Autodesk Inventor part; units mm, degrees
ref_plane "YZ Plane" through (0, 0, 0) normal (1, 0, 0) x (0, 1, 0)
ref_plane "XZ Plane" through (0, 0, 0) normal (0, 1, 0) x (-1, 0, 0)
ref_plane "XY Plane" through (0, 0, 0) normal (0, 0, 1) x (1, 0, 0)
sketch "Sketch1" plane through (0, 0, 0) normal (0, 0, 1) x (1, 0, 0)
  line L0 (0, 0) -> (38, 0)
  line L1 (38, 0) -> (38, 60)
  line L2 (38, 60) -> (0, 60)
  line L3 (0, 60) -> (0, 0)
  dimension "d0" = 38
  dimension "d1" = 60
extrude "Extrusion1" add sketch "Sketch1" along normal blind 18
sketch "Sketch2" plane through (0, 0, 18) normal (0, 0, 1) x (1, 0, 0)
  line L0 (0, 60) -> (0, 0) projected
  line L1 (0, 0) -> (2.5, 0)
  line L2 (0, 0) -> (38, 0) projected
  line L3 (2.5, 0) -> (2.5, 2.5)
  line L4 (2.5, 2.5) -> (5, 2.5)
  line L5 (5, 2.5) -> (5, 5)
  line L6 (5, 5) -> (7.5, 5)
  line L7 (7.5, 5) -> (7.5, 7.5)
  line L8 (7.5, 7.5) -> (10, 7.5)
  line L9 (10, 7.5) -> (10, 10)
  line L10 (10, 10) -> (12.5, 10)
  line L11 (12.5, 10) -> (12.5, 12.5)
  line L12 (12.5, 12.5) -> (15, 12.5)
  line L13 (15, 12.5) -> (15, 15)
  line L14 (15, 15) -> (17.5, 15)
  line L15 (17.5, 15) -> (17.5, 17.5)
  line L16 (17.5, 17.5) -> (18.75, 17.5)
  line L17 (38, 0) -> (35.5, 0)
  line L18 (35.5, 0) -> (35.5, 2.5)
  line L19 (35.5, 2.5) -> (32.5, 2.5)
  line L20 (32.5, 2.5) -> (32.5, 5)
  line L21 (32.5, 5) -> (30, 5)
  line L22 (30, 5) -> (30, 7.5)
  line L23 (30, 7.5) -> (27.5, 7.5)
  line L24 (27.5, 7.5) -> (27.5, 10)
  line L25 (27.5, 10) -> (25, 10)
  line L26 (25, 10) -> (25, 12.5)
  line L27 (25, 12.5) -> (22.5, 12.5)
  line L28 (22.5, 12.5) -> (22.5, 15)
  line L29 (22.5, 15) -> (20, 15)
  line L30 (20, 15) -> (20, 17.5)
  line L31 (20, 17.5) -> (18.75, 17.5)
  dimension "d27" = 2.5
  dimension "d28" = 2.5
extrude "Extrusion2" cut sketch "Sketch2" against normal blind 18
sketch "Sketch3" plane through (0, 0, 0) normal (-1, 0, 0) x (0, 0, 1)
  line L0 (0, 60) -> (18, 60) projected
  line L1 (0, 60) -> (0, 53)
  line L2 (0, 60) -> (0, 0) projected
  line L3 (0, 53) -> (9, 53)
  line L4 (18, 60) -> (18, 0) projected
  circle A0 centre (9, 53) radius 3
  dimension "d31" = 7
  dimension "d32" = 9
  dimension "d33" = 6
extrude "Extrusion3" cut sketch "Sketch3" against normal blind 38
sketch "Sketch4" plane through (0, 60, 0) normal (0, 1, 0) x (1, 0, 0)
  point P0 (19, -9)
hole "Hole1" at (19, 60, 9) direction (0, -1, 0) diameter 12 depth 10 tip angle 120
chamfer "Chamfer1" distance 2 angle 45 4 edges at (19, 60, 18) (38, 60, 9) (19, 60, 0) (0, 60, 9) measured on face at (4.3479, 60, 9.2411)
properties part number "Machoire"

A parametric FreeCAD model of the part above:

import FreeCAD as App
import Part
import Sketcher
from FreeCAD import Vector


def edges_at(feature, points):
    """Names of the edges that pass closest to the given points."""
    edges = feature.Shape.Edges
    near = lambda p: min(range(len(edges)), key=lambda i: edges[i].distToShape(Part.Vertex(*p))[0])
    return sorted({f"Edge{near(p) + 1}" for p in points})

doc = App.newDocument("Part")
body = doc.addObject("PartDesign::Body", "Body")

# Sketch on XY plane
sketch1 = body.newObject("Sketcher::SketchObject", "Sketch")
sketch1.AttachmentSupport = (doc.getObject("XY_Plane"), [""])
sketch1.MapMode = "FlatFace"
sketch1.addGeometry(Part.LineSegment(Vector(0, 60, 0), Vector(0, 0, 0)), False)
sketch1.addGeometry(Part.LineSegment(Vector(0, 0, 0), Vector(38, 0, 0)), False)
sketch1.addGeometry(Part.LineSegment(Vector(38, 0, 0), Vector(38, 60, 0)), False)
sketch1.addGeometry(Part.LineSegment(Vector(38, 60, 0), Vector(0, 60, 0)), False)
sketch1.addConstraint(Sketcher.Constraint("Coincident", 0, 2, 1, 1))
sketch1.addConstraint(Sketcher.Constraint("Coincident", 1, 2, 2, 1))
sketch1.addConstraint(Sketcher.Constraint("Coincident", 2, 2, 3, 1))
sketch1.addConstraint(Sketcher.Constraint("Coincident", 3, 2, 0, 1))
sketch1.addConstraint(Sketcher.Constraint("Vertical", 0))
sketch1.addConstraint(Sketcher.Constraint("Horizontal", 1))
sketch1.addConstraint(Sketcher.Constraint("Vertical", 2))
sketch1.addConstraint(Sketcher.Constraint("Horizontal", 3))
sketch1.addConstraint(Sketcher.Constraint("Coincident", 0, 2, -1, 1))
sketch1.addConstraint(Sketcher.Constraint("DistanceX", 1, 1, 1, 2, 38.0))
sketch1.addConstraint(Sketcher.Constraint("DistanceY", 0, 2, 0, 1, 60.0))
pad1 = body.newObject("PartDesign::Pad", "Pad")
pad1.Profile = sketch1
pad1.Length = 18

# Sketch on XY plane
sketch2 = body.newObject("Sketcher::SketchObject", "Sketch001")
sketch2.AttachmentSupport = (doc.getObject("XY_Plane"), [""])
sketch2.MapMode = "FlatFace"
sketch2.AttachmentOffset = App.Placement(Vector(0, 0, 18), App.Rotation())
sketch2.addGeometry(Part.LineSegment(Vector(2.5, 2.5, 0), Vector(2.5, 0, 0)), False)
sketch2.addGeometry(Part.LineSegment(Vector(2.5, 0, 0), Vector(35.5, 0, 0)), False)
sketch2.addGeometry(Part.LineSegment(Vector(35.5, 0, 0), Vector(35.5, 2.5, 0)), False)
sketch2.addGeometry(Part.LineSegment(Vector(35.5, 2.5, 0), Vector(32.5, 2.5, 0)), False)
sketch2.addGeometry(Part.LineSegment(Vector(32.5, 2.5, 0), Vector(32.5, 5, 0)), False)
sketch2.addGeometry(Part.LineSegment(Vector(32.5, 5, 0), Vector(30, 5, 0)), False)
sketch2.addGeometry(Part.LineSegment(Vector(30, 5, 0), Vector(30, 7.5, 0)), False)
sketch2.addGeometry(Part.LineSegment(Vector(30, 7.5, 0), Vector(27.5, 7.5, 0)), False)
sketch2.addGeometry(Part.LineSegment(Vector(27.5, 7.5, 0), Vector(27.5, 10, 0)), False)
sketch2.addGeometry(Part.LineSegment(Vector(27.5, 10, 0), Vector(25, 10, 0)), False)
sketch2.addGeometry(Part.LineSegment(Vector(25, 10, 0), Vector(25, 12.5, 0)), False)
sketch2.addGeometry(Part.LineSegment(Vector(25, 12.5, 0), Vector(22.5, 12.5, 0)), False)
sketch2.addGeometry(Part.LineSegment(Vector(22.5, 12.5, 0), Vector(22.5, 15, 0)), False)
sketch2.addGeometry(Part.LineSegment(Vector(22.5, 15, 0), Vector(20, 15, 0)), False)
sketch2.addGeometry(Part.LineSegment(Vector(20, 15, 0), Vector(20, 17.5, 0)), False)
sketch2.addGeometry(Part.LineSegment(Vector(20, 17.5, 0), Vector(17.5, 17.5, 0)), False)
sketch2.addGeometry(Part.LineSegment(Vector(17.5, 17.5, 0), Vector(17.5, 15, 0)), False)
sketch2.addGeometry(Part.LineSegment(Vector(17.5, 15, 0), Vector(15, 15, 0)), False)
sketch2.addGeometry(Part.LineSegment(Vector(15, 15, 0), Vector(15, 12.5, 0)), False)
sketch2.addGeometry(Part.LineSegment(Vector(15, 12.5, 0), Vector(12.5, 12.5, 0)), False)
sketch2.addGeometry(Part.LineSegment(Vector(12.5, 12.5, 0), Vector(12.5, 10, 0)), False)
sketch2.addGeometry(Part.LineSegment(Vector(12.5, 10, 0), Vector(10, 10, 0)), False)
sketch2.addGeometry(Part.LineSegment(Vector(10, 10, 0), Vector(10, 7.5, 0)), False)
sketch2.addGeometry(Part.LineSegment(Vector(10, 7.5, 0), Vector(7.5, 7.5, 0)), False)
sketch2.addGeometry(Part.LineSegment(Vector(7.5, 7.5, 0), Vector(7.5, 5, 0)), False)
sketch2.addGeometry(Part.LineSegment(Vector(7.5, 5, 0), Vector(5, 5, 0)), False)
sketch2.addGeometry(Part.LineSegment(Vector(5, 5, 0), Vector(5, 2.5, 0)), False)
sketch2.addGeometry(Part.LineSegment(Vector(5, 2.5, 0), Vector(2.5, 2.5, 0)), False)
sketch2.addConstraint(Sketcher.Constraint("Coincident", 0, 2, 1, 1))
sketch2.addConstraint(Sketcher.Constraint("Coincident", 1, 2, 2, 1))
sketch2.addConstraint(Sketcher.Constraint("Coincident", 2, 2, 3, 1))
sketch2.addConstraint(Sketcher.Constraint("Coincident", 3, 2, 4, 1))
sketch2.addConstraint(Sketcher.Constraint("Coincident", 4, 2, 5, 1))
sketch2.addConstraint(Sketcher.Constraint("Coincident", 5, 2, 6, 1))
sketch2.addConstraint(Sketcher.Constraint("Coincident", 6, 2, 7, 1))
sketch2.addConstraint(Sketcher.Constraint("Coincident", 7, 2, 8, 1))
sketch2.addConstraint(Sketcher.Constraint("Coincident", 8, 2, 9, 1))
sketch2.addConstraint(Sketcher.Constraint("Coincident", 9, 2, 10, 1))
sketch2.addConstraint(Sketcher.Constraint("Coincident", 10, 2, 11, 1))
sketch2.addConstraint(Sketcher.Constraint("Coincident", 11, 2, 12, 1))
sketch2.addConstraint(Sketcher.Constraint("Coincident", 12, 2, 13, 1))
sketch2.addConstraint(Sketcher.Constraint("Coincident", 13, 2, 14, 1))
sketch2.addConstraint(Sketcher.Constraint("Coincident", 14, 2, 15, 1))
sketch2.addConstraint(Sketcher.Constraint("Coincident", 15, 2, 16, 1))
sketch2.addConstraint(Sketcher.Constraint("Coincident", 16, 2, 17, 1))
sketch2.addConstraint(Sketcher.Constraint("Coincident", 17, 2, 18, 1))
sketch2.addConstraint(Sketcher.Constraint("Coincident", 18, 2, 19, 1))
sketch2.addConstraint(Sketcher.Constraint("Coincident", 19, 2, 20, 1))
sketch2.addConstraint(Sketcher.Constraint("Coincident", 20, 2, 21, 1))
sketch2.addConstraint(Sketcher.Constraint("Coincident", 21, 2, 22, 1))
sketch2.addConstraint(Sketcher.Constraint("Coincident", 22, 2, 23, 1))
sketch2.addConstraint(Sketcher.Constraint("Coincident", 23, 2, 24, 1))
sketch2.addConstraint(Sketcher.Constraint("Coincident", 24, 2, 25, 1))
sketch2.addConstraint(Sketcher.Constraint("Coincident", 25, 2, 26, 1))
sketch2.addConstraint(Sketcher.Constraint("Coincident", 26, 2, 27, 1))
sketch2.addConstraint(Sketcher.Constraint("Coincident", 27, 2, 0, 1))
sketch2.addConstraint(Sketcher.Constraint("Vertical", 0))
sketch2.addConstraint(Sketcher.Constraint("Horizontal", 1))
sketch2.addConstraint(Sketcher.Constraint("Vertical", 2))
sketch2.addConstraint(Sketcher.Constraint("Horizontal", 3))
sketch2.addConstraint(Sketcher.Constraint("Vertical", 4))
sketch2.addConstraint(Sketcher.Constraint("Horizontal", 5))
sketch2.addConstraint(Sketcher.Constraint("Vertical", 6))
sketch2.addConstraint(Sketcher.Constraint("Horizontal", 7))
sketch2.addConstraint(Sketcher.Constraint("Vertical", 8))
sketch2.addConstraint(Sketcher.Constraint("Horizontal", 9))
sketch2.addConstraint(Sketcher.Constraint("Vertical", 10))
sketch2.addConstraint(Sketcher.Constraint("Horizontal", 11))
sketch2.addConstraint(Sketcher.Constraint("Vertical", 12))
sketch2.addConstraint(Sketcher.Constraint("Horizontal", 13))
sketch2.addConstraint(Sketcher.Constraint("Vertical", 14))
sketch2.addConstraint(Sketcher.Constraint("Horizontal", 15))
sketch2.addConstraint(Sketcher.Constraint("Vertical", 16))
sketch2.addConstraint(Sketcher.Constraint("Horizontal", 17))
sketch2.addConstraint(Sketcher.Constraint("Vertical", 18))
sketch2.addConstraint(Sketcher.Constraint("Horizontal", 19))
sketch2.addConstraint(Sketcher.Constraint("Vertical", 20))
sketch2.addConstraint(Sketcher.Constraint("Horizontal", 21))
sketch2.addConstraint(Sketcher.Constraint("Vertical", 22))
sketch2.addConstraint(Sketcher.Constraint("Horizontal", 23))
sketch2.addConstraint(Sketcher.Constraint("Vertical", 24))
sketch2.addConstraint(Sketcher.Constraint("Horizontal", 25))
sketch2.addConstraint(Sketcher.Constraint("Vertical", 26))
sketch2.addConstraint(Sketcher.Constraint("Horizontal", 27))
sketch2.addConstraint(Sketcher.Constraint("PointOnObject", 0, 2, -1))
sketch2.addConstraint(Sketcher.Constraint("Horizontal", 13, 2, 16, 2))
sketch2.addConstraint(Sketcher.Constraint("Horizontal", 11, 2, 18, 2))
sketch2.addConstraint(Sketcher.Constraint("Horizontal", 9, 2, 20, 2))
sketch2.addConstraint(Sketcher.Constraint("Horizontal", 7, 2, 22, 2))
sketch2.addConstraint(Sketcher.Constraint("Horizontal", 5, 2, 24, 2))
sketch2.addConstraint(Sketcher.Constraint("Horizontal", 3, 2, 26, 2))
sketch2.addConstraint(Sketcher.Constraint("Equal", 5, 7))
sketch2.addConstraint(Sketcher.Constraint("Equal", 7, 9))
sketch2.addConstraint(Sketcher.Constraint("Equal", 9, 11))
sketch2.addConstraint(Sketcher.Constraint("Equal", 11, 13))
sketch2.addConstraint(Sketcher.Constraint("Equal", 13, 15))
sketch2.addConstraint(Sketcher.Constraint("Equal", 15, 17))
sketch2.addConstraint(Sketcher.Constraint("Equal", 17, 19))
sketch2.addConstraint(Sketcher.Constraint("Equal", 19, 21))
sketch2.addConstraint(Sketcher.Constraint("Equal", 21, 23))
sketch2.addConstraint(Sketcher.Constraint("Equal", 23, 25))
sketch2.addConstraint(Sketcher.Constraint("Equal", 25, 27))
sketch2.addConstraint(Sketcher.Constraint("Equal", 27, 0))
sketch2.addConstraint(Sketcher.Constraint("Equal", 2, 4))
sketch2.addConstraint(Sketcher.Constraint("Equal", 4, 6))
sketch2.addConstraint(Sketcher.Constraint("Equal", 6, 8))
sketch2.addConstraint(Sketcher.Constraint("Equal", 8, 10))
sketch2.addConstraint(Sketcher.Constraint("Equal", 10, 12))
sketch2.addConstraint(Sketcher.Constraint("Equal", 12, 14))
sketch2.addConstraint(Sketcher.Constraint("DistanceX", 5, 2, 5, 1, 2.5))
sketch2.addConstraint(Sketcher.Constraint("DistanceX", -1, 1, 0, 2, 2.5))
sketch2.addConstraint(Sketcher.Constraint("DistanceX", 1, 1, 1, 2, 33.0))
pocket1 = body.newObject("PartDesign::Pocket", "Pocket")
pocket1.Profile = sketch2
pocket1.Length = 18

# Sketch on YZ plane
sketch3 = body.newObject("Sketcher::SketchObject", "Sketch002")
sketch3.AttachmentSupport = (doc.getObject("YZ_Plane"), [""])
sketch3.MapMode = "FlatFace"
sketch3.addGeometry(Part.Circle(Vector(53, 9, 0), Vector(0, 0, 1), 3), False)
sketch3.addConstraint(Sketcher.Constraint("Diameter", 0, 6.0))
sketch3.addConstraint(Sketcher.Constraint("DistanceY", -1, 1, 0, 3, 9.0))
sketch3.addConstraint(Sketcher.Constraint("DistanceX", -1, 1, 0, 3, 53.0))
pocket2 = body.newObject("PartDesign::Pocket", "Pocket001")
pocket2.Profile = sketch3
pocket2.Length = 38
pocket2.Reversed = True

# Sketch on XZ plane
sketch4 = body.newObject("Sketcher::SketchObject", "Sketch003")
sketch4.AttachmentSupport = (doc.getObject("XZ_Plane"), [""])
sketch4.MapMode = "FlatFace"
sketch4.AttachmentOffset = App.Placement(Vector(0, 0, -60), App.Rotation())
sketch4.addGeometry(Part.Circle(Vector(19, 9, 0), Vector(0, 0, 1), 6), False)
sketch4.addConstraint(Sketcher.Constraint("Diameter", 0, 12.0))
sketch4.addConstraint(Sketcher.Constraint("DistanceX", -1, 1, 0, 3, 19.0))
sketch4.addConstraint(Sketcher.Constraint("DistanceY", -1, 1, 0, 3, 9.0))
doc.recompute()
hole = body.newObject("PartDesign::Hole", "Hole")
hole.Profile = sketch4
hole.ThreadType = "None"
hole.Diameter = 12
hole.DepthType = "Dimension"
hole.Depth = 10
hole.DrillPoint = "Angled"
hole.DrillPointAngle = 120
hole.Reversed = True
doc.recompute()

chamfer = body.newObject("PartDesign::Chamfer", "Chamfer")
chamfer.Base = (hole, edges_at(hole, [
    (19, 60, 18),
    (38, 60, 9),
    (19, 60, 0),
    (0, 60, 9),
]))
chamfer.Size = 2

doc.recompute()
